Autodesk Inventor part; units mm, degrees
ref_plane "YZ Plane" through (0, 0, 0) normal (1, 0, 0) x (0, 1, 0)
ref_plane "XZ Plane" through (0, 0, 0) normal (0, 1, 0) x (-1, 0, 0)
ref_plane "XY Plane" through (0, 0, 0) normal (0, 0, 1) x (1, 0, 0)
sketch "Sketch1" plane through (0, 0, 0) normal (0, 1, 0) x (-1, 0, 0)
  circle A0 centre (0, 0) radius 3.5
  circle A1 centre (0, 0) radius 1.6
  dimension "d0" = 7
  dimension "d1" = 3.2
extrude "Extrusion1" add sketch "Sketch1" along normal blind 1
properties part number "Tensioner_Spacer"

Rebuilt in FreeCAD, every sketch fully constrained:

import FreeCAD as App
import Part
import Sketcher

doc = App.newDocument("Part")
body = doc.addObject("PartDesign::Body", "Body")

# Sketch on XZ plane
sketch1 = body.newObject("Sketcher::SketchObject", "Sketch")
sketch1.AttachmentSupport = (doc.getObject("XZ_Plane"), [""])
sketch1.MapMode = "FlatFace"
sketch1.addGeometry(Part.Circle(App.Vector(0, 0, 0), App.Vector(0, 0, 1), 3.5), False)
sketch1.addGeometry(Part.Circle(App.Vector(0, 0, 0), App.Vector(0, 0, 1), 1.6), False)
sketch1.addConstraint(Sketcher.Constraint("Coincident", 0, 3, -1, 1))
sketch1.addConstraint(Sketcher.Constraint("Coincident", 1, 3, -1, 1))
sketch1.addConstraint(Sketcher.Constraint("Diameter", 0, 7.0))
sketch1.addConstraint(Sketcher.Constraint("Diameter", 1, 3.2))
pad1 = body.newObject("PartDesign::Pad", "Pad")
pad1.Profile = sketch1
pad1.Length = 1
pad1.Reversed = True

doc.recompute()
